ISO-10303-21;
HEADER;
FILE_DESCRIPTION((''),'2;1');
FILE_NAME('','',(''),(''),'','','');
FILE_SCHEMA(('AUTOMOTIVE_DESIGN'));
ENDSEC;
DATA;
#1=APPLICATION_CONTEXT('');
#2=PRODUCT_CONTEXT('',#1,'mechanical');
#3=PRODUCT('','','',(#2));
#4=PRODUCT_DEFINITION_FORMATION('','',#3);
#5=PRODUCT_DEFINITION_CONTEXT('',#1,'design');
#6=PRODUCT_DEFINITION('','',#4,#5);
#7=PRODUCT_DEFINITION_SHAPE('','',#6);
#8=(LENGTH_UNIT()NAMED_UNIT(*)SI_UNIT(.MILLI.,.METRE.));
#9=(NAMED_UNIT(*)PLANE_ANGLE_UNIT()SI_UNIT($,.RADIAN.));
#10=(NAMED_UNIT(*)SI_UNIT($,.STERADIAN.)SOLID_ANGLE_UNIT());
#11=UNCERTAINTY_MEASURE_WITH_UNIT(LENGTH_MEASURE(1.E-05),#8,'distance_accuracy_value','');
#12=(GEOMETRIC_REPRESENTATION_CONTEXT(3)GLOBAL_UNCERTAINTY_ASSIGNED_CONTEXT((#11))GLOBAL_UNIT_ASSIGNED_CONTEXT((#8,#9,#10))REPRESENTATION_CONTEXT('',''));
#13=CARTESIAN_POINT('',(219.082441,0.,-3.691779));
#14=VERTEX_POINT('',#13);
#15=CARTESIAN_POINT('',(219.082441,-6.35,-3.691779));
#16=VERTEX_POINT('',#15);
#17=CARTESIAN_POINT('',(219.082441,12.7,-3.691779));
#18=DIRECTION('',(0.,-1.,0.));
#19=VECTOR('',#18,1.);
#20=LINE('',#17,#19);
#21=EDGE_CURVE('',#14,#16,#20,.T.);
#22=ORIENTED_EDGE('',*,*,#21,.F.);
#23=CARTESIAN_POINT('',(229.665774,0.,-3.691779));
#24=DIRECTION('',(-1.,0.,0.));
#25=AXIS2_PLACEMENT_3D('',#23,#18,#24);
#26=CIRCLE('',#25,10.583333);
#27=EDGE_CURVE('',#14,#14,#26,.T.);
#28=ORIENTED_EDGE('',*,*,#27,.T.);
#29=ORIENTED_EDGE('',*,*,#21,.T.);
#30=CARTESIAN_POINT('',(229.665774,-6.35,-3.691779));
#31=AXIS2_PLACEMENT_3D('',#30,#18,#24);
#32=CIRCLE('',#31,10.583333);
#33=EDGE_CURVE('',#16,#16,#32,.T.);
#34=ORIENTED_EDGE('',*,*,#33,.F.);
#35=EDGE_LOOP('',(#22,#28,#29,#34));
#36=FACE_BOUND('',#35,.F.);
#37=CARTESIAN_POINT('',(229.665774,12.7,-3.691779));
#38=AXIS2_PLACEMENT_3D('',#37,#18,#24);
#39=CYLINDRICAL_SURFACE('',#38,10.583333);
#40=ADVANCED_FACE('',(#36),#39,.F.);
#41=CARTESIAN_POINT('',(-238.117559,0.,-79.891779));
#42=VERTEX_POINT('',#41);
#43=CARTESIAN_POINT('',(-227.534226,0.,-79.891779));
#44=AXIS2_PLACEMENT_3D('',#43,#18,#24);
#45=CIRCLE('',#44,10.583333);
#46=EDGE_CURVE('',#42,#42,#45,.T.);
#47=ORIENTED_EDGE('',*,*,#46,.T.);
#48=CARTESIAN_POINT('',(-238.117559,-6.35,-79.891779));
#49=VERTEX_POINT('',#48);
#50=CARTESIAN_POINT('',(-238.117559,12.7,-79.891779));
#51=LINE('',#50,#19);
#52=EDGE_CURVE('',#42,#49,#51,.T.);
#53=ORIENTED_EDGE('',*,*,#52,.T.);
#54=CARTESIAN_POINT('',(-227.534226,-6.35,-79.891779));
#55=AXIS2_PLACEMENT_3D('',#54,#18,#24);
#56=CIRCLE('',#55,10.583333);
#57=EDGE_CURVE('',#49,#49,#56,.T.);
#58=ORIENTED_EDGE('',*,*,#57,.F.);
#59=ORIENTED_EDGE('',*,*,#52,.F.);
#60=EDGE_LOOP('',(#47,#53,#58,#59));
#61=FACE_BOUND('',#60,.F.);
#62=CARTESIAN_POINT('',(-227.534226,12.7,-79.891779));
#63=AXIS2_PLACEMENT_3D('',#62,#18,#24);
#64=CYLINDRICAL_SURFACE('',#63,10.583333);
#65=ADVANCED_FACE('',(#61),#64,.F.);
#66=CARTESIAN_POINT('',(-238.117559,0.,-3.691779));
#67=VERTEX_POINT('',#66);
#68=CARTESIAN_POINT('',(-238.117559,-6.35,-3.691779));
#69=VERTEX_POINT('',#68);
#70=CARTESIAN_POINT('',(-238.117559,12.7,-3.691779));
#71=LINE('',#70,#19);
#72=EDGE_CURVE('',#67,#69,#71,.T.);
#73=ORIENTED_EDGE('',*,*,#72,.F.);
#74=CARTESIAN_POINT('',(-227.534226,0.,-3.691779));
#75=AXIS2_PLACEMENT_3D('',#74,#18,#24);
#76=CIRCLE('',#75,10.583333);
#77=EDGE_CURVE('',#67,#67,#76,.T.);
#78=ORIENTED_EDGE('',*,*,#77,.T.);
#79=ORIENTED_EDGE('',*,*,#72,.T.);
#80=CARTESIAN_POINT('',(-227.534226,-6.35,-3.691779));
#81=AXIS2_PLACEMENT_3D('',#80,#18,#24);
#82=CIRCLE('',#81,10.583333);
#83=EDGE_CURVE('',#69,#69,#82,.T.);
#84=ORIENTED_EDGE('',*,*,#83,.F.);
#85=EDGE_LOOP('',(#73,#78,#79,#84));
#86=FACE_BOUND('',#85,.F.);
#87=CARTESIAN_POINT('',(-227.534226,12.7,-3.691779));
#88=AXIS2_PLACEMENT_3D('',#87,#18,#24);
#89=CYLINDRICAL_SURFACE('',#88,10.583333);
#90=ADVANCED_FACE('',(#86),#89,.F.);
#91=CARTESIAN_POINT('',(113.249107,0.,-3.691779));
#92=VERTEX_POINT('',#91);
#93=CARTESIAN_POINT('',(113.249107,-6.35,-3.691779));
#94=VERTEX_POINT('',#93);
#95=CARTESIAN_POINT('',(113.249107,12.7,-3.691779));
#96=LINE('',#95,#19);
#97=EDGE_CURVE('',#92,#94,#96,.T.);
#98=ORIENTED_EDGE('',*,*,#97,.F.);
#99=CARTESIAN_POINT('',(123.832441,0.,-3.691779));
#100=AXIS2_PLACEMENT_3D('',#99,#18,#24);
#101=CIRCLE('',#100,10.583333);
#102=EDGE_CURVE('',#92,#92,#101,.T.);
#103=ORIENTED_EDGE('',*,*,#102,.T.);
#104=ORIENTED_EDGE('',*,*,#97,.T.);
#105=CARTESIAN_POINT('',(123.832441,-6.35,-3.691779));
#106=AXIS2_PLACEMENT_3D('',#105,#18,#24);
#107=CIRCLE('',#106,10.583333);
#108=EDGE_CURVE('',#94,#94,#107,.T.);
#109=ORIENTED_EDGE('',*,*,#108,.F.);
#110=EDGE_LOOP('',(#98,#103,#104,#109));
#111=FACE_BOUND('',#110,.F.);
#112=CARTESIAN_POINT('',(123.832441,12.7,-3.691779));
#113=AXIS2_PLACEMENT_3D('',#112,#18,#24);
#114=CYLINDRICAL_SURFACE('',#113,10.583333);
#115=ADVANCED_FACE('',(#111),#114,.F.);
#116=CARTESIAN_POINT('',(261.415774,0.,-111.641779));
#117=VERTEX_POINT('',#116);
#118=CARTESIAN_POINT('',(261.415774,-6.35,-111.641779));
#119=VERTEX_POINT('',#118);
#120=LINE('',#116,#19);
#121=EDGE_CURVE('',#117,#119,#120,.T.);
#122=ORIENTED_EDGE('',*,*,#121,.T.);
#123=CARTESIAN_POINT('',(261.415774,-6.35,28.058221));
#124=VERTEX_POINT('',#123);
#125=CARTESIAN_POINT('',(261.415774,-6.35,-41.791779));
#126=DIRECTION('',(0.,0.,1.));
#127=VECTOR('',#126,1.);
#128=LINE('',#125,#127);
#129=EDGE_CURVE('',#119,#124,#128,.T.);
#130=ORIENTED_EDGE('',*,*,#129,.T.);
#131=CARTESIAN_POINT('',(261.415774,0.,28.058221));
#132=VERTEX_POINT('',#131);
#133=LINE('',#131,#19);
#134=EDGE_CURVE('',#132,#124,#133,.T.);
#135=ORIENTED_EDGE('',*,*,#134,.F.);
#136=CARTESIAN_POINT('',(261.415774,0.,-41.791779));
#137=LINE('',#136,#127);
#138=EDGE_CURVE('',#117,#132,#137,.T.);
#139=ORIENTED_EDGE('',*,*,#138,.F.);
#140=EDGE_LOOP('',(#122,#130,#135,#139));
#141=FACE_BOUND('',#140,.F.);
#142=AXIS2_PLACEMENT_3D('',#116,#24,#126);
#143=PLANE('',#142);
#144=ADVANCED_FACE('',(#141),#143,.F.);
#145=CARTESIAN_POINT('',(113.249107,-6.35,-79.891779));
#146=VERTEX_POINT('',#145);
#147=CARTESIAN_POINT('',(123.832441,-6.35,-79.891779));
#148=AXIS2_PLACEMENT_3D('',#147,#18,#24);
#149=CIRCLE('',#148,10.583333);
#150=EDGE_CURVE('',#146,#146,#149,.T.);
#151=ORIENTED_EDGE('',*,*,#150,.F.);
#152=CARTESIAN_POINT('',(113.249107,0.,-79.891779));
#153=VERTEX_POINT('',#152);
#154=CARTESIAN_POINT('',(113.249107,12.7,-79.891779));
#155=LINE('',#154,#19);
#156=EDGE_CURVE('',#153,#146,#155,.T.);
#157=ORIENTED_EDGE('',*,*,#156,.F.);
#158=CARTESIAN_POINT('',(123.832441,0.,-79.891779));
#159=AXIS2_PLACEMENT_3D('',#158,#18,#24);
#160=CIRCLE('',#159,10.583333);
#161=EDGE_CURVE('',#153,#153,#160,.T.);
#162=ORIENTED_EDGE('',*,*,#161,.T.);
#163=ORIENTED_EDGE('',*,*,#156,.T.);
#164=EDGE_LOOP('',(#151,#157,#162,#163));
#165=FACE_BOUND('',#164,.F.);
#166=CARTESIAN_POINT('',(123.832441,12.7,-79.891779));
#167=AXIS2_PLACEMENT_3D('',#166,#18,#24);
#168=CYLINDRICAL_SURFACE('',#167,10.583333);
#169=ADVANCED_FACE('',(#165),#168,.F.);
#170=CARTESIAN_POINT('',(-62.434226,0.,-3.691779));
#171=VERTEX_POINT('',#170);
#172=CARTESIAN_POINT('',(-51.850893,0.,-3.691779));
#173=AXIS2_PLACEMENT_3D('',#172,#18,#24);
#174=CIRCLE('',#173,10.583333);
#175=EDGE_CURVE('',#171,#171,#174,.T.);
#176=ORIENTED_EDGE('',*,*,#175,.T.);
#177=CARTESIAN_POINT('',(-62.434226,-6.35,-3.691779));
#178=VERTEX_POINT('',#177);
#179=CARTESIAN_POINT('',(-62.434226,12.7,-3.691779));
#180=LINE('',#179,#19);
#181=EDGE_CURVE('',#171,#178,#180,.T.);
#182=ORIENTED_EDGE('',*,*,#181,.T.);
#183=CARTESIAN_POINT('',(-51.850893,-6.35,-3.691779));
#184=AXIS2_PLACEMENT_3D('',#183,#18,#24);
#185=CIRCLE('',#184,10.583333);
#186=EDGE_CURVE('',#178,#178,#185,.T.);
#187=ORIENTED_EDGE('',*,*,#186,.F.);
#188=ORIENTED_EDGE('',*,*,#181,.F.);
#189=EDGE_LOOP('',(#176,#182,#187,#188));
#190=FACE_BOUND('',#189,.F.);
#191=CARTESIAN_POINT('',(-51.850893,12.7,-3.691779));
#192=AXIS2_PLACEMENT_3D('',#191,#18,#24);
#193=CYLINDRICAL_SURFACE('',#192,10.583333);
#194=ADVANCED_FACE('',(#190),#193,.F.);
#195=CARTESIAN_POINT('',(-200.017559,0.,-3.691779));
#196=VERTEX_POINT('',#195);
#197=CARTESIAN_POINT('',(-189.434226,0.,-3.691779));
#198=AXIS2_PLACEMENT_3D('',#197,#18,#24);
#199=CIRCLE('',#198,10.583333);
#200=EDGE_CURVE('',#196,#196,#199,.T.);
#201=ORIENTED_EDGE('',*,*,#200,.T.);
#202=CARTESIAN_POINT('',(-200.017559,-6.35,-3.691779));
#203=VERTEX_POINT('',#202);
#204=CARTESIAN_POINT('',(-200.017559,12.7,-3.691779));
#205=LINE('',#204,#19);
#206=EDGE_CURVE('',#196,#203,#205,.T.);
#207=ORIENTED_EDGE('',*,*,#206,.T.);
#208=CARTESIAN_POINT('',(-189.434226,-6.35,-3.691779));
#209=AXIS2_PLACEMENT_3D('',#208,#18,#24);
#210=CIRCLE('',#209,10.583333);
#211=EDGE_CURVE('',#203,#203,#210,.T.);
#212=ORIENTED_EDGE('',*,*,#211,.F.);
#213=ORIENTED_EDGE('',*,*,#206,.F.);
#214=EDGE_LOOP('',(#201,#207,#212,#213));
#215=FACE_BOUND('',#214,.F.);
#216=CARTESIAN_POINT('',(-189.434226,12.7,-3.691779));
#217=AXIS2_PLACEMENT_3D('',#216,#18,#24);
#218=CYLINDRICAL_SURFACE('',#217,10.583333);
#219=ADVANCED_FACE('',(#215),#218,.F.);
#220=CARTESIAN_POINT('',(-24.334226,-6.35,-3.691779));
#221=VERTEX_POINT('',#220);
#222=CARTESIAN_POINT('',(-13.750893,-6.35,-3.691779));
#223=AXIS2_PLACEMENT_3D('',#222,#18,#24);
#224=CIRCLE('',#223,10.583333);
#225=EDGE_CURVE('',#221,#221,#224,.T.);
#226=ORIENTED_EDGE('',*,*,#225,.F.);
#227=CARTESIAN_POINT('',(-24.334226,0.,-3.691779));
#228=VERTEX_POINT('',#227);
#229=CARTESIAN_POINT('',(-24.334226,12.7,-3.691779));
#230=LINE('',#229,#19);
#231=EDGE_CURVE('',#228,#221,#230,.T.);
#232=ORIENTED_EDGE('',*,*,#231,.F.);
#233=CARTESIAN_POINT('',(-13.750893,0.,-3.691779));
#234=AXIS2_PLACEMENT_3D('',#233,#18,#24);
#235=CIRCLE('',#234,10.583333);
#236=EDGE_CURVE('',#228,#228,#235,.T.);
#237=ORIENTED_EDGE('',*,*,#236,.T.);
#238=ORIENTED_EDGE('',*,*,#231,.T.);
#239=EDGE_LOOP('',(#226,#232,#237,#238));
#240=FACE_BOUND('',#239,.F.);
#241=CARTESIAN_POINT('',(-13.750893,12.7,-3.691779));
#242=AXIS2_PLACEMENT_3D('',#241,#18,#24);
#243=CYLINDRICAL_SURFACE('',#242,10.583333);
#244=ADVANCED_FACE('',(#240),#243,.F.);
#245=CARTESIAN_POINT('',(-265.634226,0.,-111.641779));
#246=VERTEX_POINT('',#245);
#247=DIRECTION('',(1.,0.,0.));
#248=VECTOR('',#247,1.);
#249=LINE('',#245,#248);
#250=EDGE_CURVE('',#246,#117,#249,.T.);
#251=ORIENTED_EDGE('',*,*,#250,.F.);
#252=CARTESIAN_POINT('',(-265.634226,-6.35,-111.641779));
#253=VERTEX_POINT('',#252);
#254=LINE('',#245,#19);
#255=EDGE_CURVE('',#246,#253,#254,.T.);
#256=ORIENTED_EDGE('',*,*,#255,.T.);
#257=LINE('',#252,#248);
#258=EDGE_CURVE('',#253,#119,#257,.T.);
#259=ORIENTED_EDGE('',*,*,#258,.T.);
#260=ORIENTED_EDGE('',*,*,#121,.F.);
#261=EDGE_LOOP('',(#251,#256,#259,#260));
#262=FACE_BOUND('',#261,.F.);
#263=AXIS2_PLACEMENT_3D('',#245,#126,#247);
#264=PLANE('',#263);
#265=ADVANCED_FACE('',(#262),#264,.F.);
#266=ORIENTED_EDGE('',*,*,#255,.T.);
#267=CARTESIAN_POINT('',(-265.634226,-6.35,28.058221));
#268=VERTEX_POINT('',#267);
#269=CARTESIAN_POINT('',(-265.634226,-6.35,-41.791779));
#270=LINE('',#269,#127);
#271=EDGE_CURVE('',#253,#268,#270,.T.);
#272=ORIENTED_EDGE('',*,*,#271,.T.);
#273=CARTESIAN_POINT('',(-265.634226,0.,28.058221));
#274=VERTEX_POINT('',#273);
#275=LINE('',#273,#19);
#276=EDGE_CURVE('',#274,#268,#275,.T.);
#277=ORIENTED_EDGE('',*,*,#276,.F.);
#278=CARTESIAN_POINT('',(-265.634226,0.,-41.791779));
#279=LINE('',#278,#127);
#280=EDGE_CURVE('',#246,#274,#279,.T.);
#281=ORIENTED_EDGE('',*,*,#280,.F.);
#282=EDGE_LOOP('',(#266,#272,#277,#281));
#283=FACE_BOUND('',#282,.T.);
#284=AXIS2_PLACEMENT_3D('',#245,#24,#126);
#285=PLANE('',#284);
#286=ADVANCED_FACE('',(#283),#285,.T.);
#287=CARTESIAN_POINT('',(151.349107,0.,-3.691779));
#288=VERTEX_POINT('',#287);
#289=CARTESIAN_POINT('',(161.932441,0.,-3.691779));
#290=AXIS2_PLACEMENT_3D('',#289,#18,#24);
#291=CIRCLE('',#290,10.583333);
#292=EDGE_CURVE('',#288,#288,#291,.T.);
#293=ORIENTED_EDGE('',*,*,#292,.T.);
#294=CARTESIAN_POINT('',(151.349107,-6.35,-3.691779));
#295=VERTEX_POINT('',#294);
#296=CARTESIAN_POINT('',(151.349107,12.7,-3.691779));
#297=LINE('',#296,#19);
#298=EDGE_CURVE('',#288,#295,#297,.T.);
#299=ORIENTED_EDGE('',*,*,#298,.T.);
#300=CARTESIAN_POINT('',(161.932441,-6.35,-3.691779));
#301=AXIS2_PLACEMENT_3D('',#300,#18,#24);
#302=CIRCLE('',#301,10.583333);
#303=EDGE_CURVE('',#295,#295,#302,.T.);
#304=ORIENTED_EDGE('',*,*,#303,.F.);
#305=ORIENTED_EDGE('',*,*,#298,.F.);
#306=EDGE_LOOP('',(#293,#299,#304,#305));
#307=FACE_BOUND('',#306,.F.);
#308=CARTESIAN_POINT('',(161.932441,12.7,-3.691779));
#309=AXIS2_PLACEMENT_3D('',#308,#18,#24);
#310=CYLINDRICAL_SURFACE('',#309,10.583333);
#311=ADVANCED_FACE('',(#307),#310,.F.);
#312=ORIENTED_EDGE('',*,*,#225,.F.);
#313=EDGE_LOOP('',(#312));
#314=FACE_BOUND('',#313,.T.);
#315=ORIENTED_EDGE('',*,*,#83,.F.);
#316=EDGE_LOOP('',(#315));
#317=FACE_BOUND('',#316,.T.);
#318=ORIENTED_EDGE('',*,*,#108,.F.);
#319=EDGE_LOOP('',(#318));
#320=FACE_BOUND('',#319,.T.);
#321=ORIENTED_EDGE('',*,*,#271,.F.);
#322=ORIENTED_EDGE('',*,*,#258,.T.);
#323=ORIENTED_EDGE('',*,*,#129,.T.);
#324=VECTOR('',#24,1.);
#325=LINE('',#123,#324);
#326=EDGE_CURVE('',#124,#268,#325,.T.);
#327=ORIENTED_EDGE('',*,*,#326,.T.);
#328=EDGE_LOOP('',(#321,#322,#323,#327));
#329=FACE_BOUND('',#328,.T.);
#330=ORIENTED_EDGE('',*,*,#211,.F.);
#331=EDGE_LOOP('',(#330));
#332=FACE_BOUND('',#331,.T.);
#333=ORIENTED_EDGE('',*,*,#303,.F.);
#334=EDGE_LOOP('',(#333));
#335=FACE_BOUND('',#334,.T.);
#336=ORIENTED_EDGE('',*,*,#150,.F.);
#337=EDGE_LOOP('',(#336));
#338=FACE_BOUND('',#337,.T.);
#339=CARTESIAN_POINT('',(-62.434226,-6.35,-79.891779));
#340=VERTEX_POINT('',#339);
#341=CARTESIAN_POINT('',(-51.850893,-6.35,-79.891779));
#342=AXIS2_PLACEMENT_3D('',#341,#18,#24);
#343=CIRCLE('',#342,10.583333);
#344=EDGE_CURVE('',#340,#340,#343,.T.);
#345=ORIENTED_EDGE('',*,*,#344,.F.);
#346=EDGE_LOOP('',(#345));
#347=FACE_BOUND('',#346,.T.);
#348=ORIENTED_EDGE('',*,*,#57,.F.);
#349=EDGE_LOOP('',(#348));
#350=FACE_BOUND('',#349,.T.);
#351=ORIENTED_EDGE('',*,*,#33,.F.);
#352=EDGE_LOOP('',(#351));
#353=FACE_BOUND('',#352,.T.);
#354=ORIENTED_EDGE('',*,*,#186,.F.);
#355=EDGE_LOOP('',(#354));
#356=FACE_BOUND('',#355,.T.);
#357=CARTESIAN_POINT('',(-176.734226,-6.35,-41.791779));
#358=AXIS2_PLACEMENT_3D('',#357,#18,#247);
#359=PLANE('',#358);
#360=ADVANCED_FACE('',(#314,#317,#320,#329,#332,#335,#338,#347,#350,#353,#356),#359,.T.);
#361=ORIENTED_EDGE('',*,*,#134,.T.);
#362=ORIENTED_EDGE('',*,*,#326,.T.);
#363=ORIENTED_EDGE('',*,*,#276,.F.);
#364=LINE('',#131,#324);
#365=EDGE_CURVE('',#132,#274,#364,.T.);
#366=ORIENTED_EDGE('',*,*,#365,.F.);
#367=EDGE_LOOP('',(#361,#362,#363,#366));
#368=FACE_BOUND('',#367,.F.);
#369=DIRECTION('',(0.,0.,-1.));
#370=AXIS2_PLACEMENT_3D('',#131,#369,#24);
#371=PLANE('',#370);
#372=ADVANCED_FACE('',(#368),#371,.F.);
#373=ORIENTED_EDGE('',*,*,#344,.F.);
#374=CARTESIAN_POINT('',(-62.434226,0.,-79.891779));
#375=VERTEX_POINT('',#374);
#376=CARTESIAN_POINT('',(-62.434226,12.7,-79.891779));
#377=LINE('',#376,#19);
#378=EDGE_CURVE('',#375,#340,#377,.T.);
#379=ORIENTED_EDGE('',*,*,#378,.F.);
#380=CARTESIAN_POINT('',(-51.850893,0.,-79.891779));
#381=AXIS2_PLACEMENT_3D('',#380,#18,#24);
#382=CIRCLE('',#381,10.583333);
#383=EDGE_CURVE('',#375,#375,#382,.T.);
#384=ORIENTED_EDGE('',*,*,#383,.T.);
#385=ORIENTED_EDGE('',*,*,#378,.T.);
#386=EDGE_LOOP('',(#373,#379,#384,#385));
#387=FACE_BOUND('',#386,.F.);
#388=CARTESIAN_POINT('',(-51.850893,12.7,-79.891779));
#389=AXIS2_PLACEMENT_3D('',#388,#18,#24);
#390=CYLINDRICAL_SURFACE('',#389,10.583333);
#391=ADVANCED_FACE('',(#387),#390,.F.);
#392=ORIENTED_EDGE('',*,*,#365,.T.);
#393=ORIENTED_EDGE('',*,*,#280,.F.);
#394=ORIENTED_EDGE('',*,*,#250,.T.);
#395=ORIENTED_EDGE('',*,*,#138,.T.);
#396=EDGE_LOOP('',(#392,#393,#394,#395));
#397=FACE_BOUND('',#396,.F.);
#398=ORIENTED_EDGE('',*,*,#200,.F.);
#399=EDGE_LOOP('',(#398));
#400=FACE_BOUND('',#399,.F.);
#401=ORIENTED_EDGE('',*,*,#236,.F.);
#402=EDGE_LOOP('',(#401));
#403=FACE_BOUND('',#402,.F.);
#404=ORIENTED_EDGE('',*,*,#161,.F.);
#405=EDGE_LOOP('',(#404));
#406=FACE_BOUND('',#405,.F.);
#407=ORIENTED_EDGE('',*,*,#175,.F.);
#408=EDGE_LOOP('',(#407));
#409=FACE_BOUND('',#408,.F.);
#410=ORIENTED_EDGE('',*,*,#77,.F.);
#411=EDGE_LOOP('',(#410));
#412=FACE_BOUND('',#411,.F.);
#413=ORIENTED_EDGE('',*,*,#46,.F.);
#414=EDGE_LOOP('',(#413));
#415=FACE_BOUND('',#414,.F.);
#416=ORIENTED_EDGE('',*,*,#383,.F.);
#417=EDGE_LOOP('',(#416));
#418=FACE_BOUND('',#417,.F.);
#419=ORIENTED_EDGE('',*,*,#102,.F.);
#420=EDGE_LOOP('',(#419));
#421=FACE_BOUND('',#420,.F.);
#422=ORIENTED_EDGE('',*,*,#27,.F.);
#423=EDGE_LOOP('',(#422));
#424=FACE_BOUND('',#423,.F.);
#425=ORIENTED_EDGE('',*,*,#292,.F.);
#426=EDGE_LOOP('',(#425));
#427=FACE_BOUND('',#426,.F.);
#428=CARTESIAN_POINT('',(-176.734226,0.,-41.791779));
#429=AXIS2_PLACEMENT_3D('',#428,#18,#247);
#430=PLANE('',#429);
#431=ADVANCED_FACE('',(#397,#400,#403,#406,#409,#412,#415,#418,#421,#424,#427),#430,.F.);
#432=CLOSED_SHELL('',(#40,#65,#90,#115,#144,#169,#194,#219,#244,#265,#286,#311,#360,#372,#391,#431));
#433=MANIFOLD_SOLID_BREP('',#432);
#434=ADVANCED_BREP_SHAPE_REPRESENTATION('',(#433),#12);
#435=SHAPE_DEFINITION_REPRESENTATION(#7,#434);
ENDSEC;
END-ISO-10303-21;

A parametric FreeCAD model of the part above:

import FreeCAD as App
import Part
import Sketcher
from FreeCAD import Vector
Q = App.Units.Quantity

doc = App.newDocument("Part")
body = doc.addObject("PartDesign::Body", "Body")

sketch1 = doc.addObject("Sketcher::SketchObject", "Sketch")
body.addObject(sketch1)
sketch1.AttachmentSupport = (doc.XZ_Plane, [""])
sketch1.MapMode = "FlatFace"
sketch1.addGeometry(Part.LineSegment(Vector(-266, 28, 0), Vector(-266, -112, 0)), False)
sketch1.addGeometry(Part.LineSegment(Vector(-266, -112, 0), Vector(261, -112, 0)), False)
sketch1.addGeometry(Part.LineSegment(Vector(261, -112, 0), Vector(261, 28, 0)), False)
sketch1.addGeometry(Part.LineSegment(Vector(261, 28, 0), Vector(-266, 28, 0)), False)
sketch1.addConstraint(Sketcher.Constraint("Coincident", 0, 2, 1, 1))
sketch1.addConstraint(Sketcher.Constraint("Coincident", 1, 2, 2, 1))
sketch1.addConstraint(Sketcher.Constraint("Coincident", 2, 2, 3, 1))
sketch1.addConstraint(Sketcher.Constraint("Coincident", 3, 2, 0, 1))
sketch1.addConstraint(Sketcher.Constraint("Vertical", 0))
sketch1.addConstraint(Sketcher.Constraint("Horizontal", 1))
sketch1.addConstraint(Sketcher.Constraint("Vertical", 2))
sketch1.addConstraint(Sketcher.Constraint("Horizontal", 3))
sketch1.addConstraint(Sketcher.Constraint("DistanceY", 0, 2, 0, 1, Q("5.5 in")))
sketch1.addConstraint(Sketcher.Constraint("DistanceX", 1, 1, 1, 2, Q("20.75 in")))
sketch1.addConstraint(Sketcher.Constraint("DistanceY", 0, 2, -1, 1, 111.641779))
sketch1.addConstraint(Sketcher.Constraint("DistanceX", 0, 2, -1, 1, 265.634226))
pad1 = doc.addObject("PartDesign::Pad", "Pad")
body.addObject(pad1)
pad1.Profile = sketch1
pad1.Length = Q("0.25 in")

sketch2 = doc.addObject("Sketcher::SketchObject", "Sketch001")
body.addObject(sketch2)
sketch2.AttachmentSupport = (doc.XZ_Plane, [""])
sketch2.MapMode = "FlatFace"
sketch2.addGeometry(Part.Circle(Vector(-228, -4, 0), Vector(0, 0, 1), 11), False)
sketch2.addGeometry(Part.Circle(Vector(-189, -4, 0), Vector(0, 0, 1), 11), False)
sketch2.addGeometry(Part.Circle(Vector(-228, -80, 0), Vector(0, 0, 1), 11), False)
sketch2.addGeometry(Part.Circle(Vector(-52, -4, 0), Vector(0, 0, 1), 11), False)
sketch2.addGeometry(Part.Circle(Vector(-14, -4, 0), Vector(0, 0, 1), 11), False)
sketch2.addGeometry(Part.Circle(Vector(-52, -80, 0), Vector(0, 0, 1), 11), False)
sketch2.addGeometry(Part.Circle(Vector(124, -4, 0), Vector(0, 0, 1), 11), False)
sketch2.addGeometry(Part.Circle(Vector(162, -4, 0), Vector(0, 0, 1), 11), False)
sketch2.addGeometry(Part.Circle(Vector(124, -80, 0), Vector(0, 0, 1), 11), False)
sketch2.addGeometry(Part.Circle(Vector(230, -4, 0), Vector(0, 0, 1), 11), False)
sketch2.addConstraint(Sketcher.Constraint("Equal", 0, 1))
sketch2.addConstraint(Sketcher.Constraint("Equal", 1, 2))
sketch2.addConstraint(Sketcher.Constraint("Equal", 2, 3))
sketch2.addConstraint(Sketcher.Constraint("Equal", 3, 4))
sketch2.addConstraint(Sketcher.Constraint("Equal", 4, 5))
sketch2.addConstraint(Sketcher.Constraint("Equal", 5, 6))
sketch2.addConstraint(Sketcher.Constraint("Equal", 6, 7))
sketch2.addConstraint(Sketcher.Constraint("Equal", 7, 8))
sketch2.addConstraint(Sketcher.Constraint("Equal", 8, 9))
sketch2.addConstraint(Sketcher.Constraint("Horizontal", 0, 3, 1, 3))
sketch2.addConstraint(Sketcher.Constraint("Horizontal", 1, 3, 3, 3))
sketch2.addConstraint(Sketcher.Constraint("Horizontal", 3, 3, 4, 3))
sketch2.addConstraint(Sketcher.Constraint("Horizontal", 2, 3, 5, 3))
sketch2.addConstraint(Sketcher.Constraint("Horizontal", 4, 3, 6, 3))
sketch2.addConstraint(Sketcher.Constraint("Horizontal", 6, 3, 7, 3))
sketch2.addConstraint(Sketcher.Constraint("Horizontal", 5, 3, 8, 3))
sketch2.addConstraint(Sketcher.Constraint("Horizontal", 7, 3, 9, 3))
sketch2.addConstraint(Sketcher.Constraint("Vertical", 0, 3, 2, 3))
sketch2.addConstraint(Sketcher.Constraint("Vertical", 3, 3, 5, 3))
sketch2.addConstraint(Sketcher.Constraint("Vertical", 6, 3, 8, 3))
sketch2.addConstraint(Sketcher.Constraint("DistanceY", 2, 3, 0, 3, Q("3 in")))
sketch2.addConstraint(Sketcher.Constraint("DistanceX", 0, 3, 1, 3, Q("1.5 in")))
sketch2.addConstraint(Sketcher.Constraint("DistanceX", 3, 3, 4, 3, Q("1.5 in")))
sketch2.addConstraint(Sketcher.Constraint("DistanceX", 6, 3, 7, 3, Q("1.5 in")))
sketch2.addConstraint(Sketcher.Constraint("Diameter", 0, 21.166667))
sketch2.addConstraint(Sketcher.Constraint("DistanceY", 0, 3, -1, 1, 3.691779))
sketch2.addConstraint(Sketcher.Constraint("DistanceX", -1, 1, 6, 3, 123.832441))
sketch2.addConstraint(Sketcher.Constraint("DistanceX", 0, 3, -1, 1, 227.534226))
sketch2.addConstraint(Sketcher.Constraint("DistanceX", 3, 3, -1, 1, 51.850893))
sketch2.addConstraint(Sketcher.Constraint("DistanceX", -1, 1, 9, 3, 229.665774))
doc.recompute()
hole = doc.addObject("PartDesign::Hole", "Hole")
body.addObject(hole)
hole.Profile = sketch2
hole.ThreadType = "None"
hole.Diameter = 21.166667
hole.DepthType = "Dimension"
hole.Depth = Q("0.5 in")
hole.DrillPoint = "Angled"
hole.DrillPointAngle = 118
hole.Reversed = True

doc.recompute()
